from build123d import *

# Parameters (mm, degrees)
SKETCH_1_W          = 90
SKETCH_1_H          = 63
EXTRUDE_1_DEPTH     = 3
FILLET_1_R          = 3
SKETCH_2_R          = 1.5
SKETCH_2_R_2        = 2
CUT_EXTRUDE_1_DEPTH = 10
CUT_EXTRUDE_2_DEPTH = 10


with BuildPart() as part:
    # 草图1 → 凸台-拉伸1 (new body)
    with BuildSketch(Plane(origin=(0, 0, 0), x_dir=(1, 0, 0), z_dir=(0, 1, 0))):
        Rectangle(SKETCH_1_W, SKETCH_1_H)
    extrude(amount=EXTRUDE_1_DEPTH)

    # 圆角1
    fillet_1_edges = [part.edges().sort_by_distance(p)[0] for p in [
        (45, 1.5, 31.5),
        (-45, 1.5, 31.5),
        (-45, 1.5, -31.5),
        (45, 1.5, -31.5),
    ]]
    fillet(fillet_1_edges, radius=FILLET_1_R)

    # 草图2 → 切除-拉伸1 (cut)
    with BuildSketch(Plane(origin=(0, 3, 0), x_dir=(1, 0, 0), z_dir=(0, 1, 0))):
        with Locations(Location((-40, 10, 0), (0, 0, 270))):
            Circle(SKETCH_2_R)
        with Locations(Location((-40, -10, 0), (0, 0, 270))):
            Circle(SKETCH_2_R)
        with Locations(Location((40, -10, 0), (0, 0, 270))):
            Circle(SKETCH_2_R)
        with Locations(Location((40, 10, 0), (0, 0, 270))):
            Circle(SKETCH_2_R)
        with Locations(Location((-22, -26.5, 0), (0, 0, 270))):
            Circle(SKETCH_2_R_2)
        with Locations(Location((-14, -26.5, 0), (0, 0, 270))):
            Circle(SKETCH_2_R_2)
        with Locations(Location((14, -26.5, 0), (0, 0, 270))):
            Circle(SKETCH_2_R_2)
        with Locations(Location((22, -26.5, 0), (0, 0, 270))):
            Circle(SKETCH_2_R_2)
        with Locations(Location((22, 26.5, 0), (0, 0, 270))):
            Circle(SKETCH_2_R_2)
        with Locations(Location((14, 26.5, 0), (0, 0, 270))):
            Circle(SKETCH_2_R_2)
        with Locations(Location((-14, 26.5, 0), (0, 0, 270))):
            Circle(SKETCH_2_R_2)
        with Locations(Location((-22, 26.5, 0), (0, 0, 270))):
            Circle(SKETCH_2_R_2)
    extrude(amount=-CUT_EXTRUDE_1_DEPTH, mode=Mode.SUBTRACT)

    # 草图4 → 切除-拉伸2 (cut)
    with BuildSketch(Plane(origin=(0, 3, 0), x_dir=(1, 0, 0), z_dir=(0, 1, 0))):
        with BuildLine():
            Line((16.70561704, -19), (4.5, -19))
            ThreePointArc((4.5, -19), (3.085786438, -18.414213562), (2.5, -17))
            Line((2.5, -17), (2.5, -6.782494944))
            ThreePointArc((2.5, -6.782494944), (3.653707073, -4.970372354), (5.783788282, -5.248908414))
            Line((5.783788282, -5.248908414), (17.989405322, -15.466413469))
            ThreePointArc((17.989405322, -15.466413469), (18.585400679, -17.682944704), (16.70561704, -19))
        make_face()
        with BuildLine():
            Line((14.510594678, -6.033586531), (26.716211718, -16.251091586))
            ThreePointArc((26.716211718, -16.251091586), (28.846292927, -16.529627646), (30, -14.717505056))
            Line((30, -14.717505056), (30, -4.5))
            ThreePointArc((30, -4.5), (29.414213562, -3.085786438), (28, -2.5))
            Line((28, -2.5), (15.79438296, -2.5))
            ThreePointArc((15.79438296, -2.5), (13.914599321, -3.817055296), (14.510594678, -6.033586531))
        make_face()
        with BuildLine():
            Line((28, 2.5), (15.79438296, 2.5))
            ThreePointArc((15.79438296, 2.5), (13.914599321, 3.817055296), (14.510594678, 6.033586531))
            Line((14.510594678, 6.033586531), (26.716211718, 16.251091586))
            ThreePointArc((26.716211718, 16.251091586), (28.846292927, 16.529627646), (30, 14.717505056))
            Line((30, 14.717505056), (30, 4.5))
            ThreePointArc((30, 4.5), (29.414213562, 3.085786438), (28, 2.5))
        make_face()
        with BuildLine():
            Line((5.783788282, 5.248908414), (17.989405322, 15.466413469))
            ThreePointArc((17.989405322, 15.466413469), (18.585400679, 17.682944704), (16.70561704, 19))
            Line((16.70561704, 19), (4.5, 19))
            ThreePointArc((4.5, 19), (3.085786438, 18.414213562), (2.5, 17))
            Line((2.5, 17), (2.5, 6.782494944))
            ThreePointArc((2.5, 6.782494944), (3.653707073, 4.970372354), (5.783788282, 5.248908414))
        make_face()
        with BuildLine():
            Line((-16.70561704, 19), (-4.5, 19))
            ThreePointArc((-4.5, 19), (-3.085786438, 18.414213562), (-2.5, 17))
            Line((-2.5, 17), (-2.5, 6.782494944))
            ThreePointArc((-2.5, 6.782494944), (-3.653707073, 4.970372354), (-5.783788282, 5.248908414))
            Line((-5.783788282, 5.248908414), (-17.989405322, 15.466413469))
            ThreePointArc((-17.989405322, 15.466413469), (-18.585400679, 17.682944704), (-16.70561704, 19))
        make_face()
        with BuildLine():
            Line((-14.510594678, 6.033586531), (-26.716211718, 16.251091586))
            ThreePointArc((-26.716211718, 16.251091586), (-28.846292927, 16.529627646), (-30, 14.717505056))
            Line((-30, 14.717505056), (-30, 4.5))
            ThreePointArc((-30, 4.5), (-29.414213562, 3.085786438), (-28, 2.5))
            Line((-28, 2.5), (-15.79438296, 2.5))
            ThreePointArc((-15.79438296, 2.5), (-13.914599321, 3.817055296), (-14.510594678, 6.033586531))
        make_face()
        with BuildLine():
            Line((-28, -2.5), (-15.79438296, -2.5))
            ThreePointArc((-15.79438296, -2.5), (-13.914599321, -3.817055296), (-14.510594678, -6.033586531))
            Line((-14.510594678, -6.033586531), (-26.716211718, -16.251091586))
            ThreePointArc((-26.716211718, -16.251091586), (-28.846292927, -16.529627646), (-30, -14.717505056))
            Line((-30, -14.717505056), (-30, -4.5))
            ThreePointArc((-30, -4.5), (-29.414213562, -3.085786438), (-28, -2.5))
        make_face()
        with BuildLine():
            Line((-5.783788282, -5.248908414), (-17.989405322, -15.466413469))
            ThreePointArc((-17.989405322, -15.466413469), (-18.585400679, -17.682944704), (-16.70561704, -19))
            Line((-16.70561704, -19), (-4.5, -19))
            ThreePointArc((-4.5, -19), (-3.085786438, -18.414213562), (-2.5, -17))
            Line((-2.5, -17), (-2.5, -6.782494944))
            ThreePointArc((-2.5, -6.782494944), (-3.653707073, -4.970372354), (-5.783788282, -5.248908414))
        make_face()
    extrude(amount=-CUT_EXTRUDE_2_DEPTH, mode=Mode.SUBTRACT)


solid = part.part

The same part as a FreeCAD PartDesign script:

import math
import FreeCAD as App
import Part
import Sketcher

V = App.Vector


def edges_at(feature, points):
    """Names of the edges that pass closest to the given points."""
    edges = feature.Shape.Edges
    near = lambda p: min(range(len(edges)), key=lambda i: edges[i].distToShape(Part.Vertex(*p))[0])
    return sorted({f"Edge{near(p) + 1}" for p in points})

doc = App.newDocument("Part")
body = doc.addObject("PartDesign::Body", "Body")

sketch1 = doc.addObject("Sketcher::SketchObject", "Sketch")
body.addObject(sketch1)
sketch1.AttachmentSupport = (doc.XZ_Plane, [""])
sketch1.MapMode = "FlatFace"
sketch1.addGeometry(Part.LineSegment(V(-45, -32, 0), V(-45, 32, 0)), False)
sketch1.addGeometry(Part.LineSegment(V(-45, 32, 0), V(45, 32, 0)), False)
sketch1.addGeometry(Part.LineSegment(V(45, 32, 0), V(45, -32, 0)), False)
sketch1.addGeometry(Part.LineSegment(V(45, -32, 0), V(-45, -32, 0)), False)
sketch1.addConstraint(Sketcher.Constraint("Coincident", 0, 2, 1, 1))
sketch1.addConstraint(Sketcher.Constraint("Coincident", 1, 2, 2, 1))
sketch1.addConstraint(Sketcher.Constraint("Coincident", 2, 2, 3, 1))
sketch1.addConstraint(Sketcher.Constraint("Coincident", 3, 2, 0, 1))
sketch1.addConstraint(Sketcher.Constraint("Vertical", 0))
sketch1.addConstraint(Sketcher.Constraint("Horizontal", 1))
sketch1.addConstraint(Sketcher.Constraint("Vertical", 2))
sketch1.addConstraint(Sketcher.Constraint("Horizontal", 3))
sketch1.addConstraint(Sketcher.Constraint("Symmetric", 0, 2, 2, 2, -1, 1))
sketch1.addConstraint(Sketcher.Constraint("DistanceX", 1, 1, 1, 2, 90.0))
sketch1.addConstraint(Sketcher.Constraint("DistanceY", 0, 1, 0, 2, 63.0))
pad1 = doc.addObject("PartDesign::Pad", "Pad")
body.addObject(pad1)
pad1.Profile = sketch1
pad1.Length = 3
pad1.Reversed = True
doc.recompute()

fillet = doc.addObject("PartDesign::Fillet", "Fillet")
body.addObject(fillet)
fillet.Base = (pad1, edges_at(pad1, [
    (45, 1.5, 31.5),
    (-45, 1.5, 31.5),
    (-45, 1.5, -31.5),
    (45, 1.5, -31.5),
]))
fillet.Radius = 3

sketch2 = doc.addObject("Sketcher::SketchObject", "Sketch001")
body.addObject(sketch2)
sketch2.AttachmentSupport = (doc.XZ_Plane, [""])
sketch2.MapMode = "FlatFace"
sketch2.AttachmentOffset = App.Placement(V(0, 0, -3), App.Rotation())
sketch2.addGeometry(Part.Circle(V(-40, -10, 0), V(0, 0, 1), 1.5), False)
sketch2.addGeometry(Part.Circle(V(-40, 10, 0), V(0, 0, 1), 1.5), False)
sketch2.addGeometry(Part.Circle(V(40, 10, 0), V(0, 0, 1), 1.5), False)
sketch2.addGeometry(Part.Circle(V(40, -10, 0), V(0, 0, 1), 1.5), False)
sketch2.addGeometry(Part.Circle(V(-22, 26.5, 0), V(0, 0, 1), 2), False)
sketch2.addGeometry(Part.Circle(V(-14, 26.5, 0), V(0, 0, 1), 2), False)
sketch2.addGeometry(Part.Circle(V(14, 26.5, 0), V(0, 0, 1), 2), False)
sketch2.addGeometry(Part.Circle(V(22, 26.5, 0), V(0, 0, 1), 2), False)
sketch2.addGeometry(Part.Circle(V(22, -26.5, 0), V(0, 0, 1), 2), False)
sketch2.addGeometry(Part.Circle(V(14, -26.5, 0), V(0, 0, 1), 2), False)
sketch2.addGeometry(Part.Circle(V(-14, -26.5, 0), V(0, 0, 1), 2), False)
sketch2.addGeometry(Part.Circle(V(-22, -26.5, 0), V(0, 0, 1), 2), False)
sketch2.addConstraint(Sketcher.Constraint("Equal", 0, 1))
sketch2.addConstraint(Sketcher.Constraint("Equal", 1, 2))
sketch2.addConstraint(Sketcher.Constraint("Equal", 2, 3))
sketch2.addConstraint(Sketcher.Constraint("Equal", 4, 5))
sketch2.addConstraint(Sketcher.Constraint("Equal", 5, 6))
sketch2.addConstraint(Sketcher.Constraint("Equal", 6, 7))
sketch2.addConstraint(Sketcher.Constraint("Equal", 7, 8))
sketch2.addConstraint(Sketcher.Constraint("Equal", 8, 9))
sketch2.addConstraint(Sketcher.Constraint("Equal", 9, 10))
sketch2.addConstraint(Sketcher.Constraint("Equal", 10, 11))
sketch2.addConstraint(Sketcher.Constraint("Symmetric", 0, 3, 2, 3, -1, 1))
sketch2.addConstraint(Sketcher.Constraint("Symmetric", 1, 3, 3, 3, -1, 1))
sketch2.addConstraint(Sketcher.Constraint("Symmetric", 4, 3, 8, 3, -1, 1))
sketch2.addConstraint(Sketcher.Constraint("Symmetric", 5, 3, 9, 3, -1, 1))
sketch2.addConstraint(Sketcher.Constraint("Symmetric", 6, 3, 10, 3, -1, 1))
sketch2.addConstraint(Sketcher.Constraint("Symmetric", 7, 3, 11, 3, -1, 1))
sketch2.addConstraint(Sketcher.Constraint("Symmetric", 1, 3, 2, 3, -2))
sketch2.addConstraint(Sketcher.Constraint("Symmetric", 5, 3, 6, 3, -2))
sketch2.addConstraint(Sketcher.Constraint("Symmetric", 4, 3, 7, 3, -2))
sketch2.addConstraint(Sketcher.Constraint("Horizontal", 4, 3, 5, 3))
sketch2.addConstraint(Sketcher.Constraint("Diameter", 0, 3.0))
sketch2.addConstraint(Sketcher.Constraint("Diameter", 4, 4.0))
sketch2.addConstraint(Sketcher.Constraint("DistanceX", 0, 3, -1, 1, 40.0))
sketch2.addConstraint(Sketcher.Constraint("DistanceY", 0, 3, -1, 1, 10.0))
sketch2.addConstraint(Sketcher.Constraint("DistanceX", 4, 3, -1, 1, 22.0))
sketch2.addConstraint(Sketcher.Constraint("DistanceX", 5, 3, -1, 1, 14.0))
sketch2.addConstraint(Sketcher.Constraint("DistanceY", 8, 3, 7, 3, 53.0))
pocket1 = doc.addObject("PartDesign::Pocket", "Pocket")
body.addObject(pocket1)
pocket1.Profile = sketch2
pocket1.Length = 10
pocket1.Reversed = True

sketch3 = doc.addObject("Sketcher::SketchObject", "Sketch002")
body.addObject(sketch3)
sketch3.AttachmentSupport = (doc.XZ_Plane, [""])
sketch3.MapMode = "FlatFace"
sketch3.AttachmentOffset = App.Placement(V(0, 0, -3), App.Rotation())
sketch3.addGeometry(Part.LineSegment(V(4.5, 19, 0), V(16.7, 19, 0)), False)
sketch3.addGeometry(Part.ArcOfCircle(Part.Circle(V(16.7, 17, 0), V(0, 0, 1), 2), math.radians(-50), math.radians(90)), False)
sketch3.addGeometry(Part.LineSegment(V(18, 15.5, 0), V(5.8, 5.2, 0)), False)
sketch3.addGeometry(Part.ArcOfCircle(Part.Circle(V(4.5, 6.8, 0), V(0, 0, 1), 2), math.radians(180), math.radians(310)), False)
sketch3.addGeometry(Part.LineSegment(V(2.5, 6.8, 0), V(2.5, 17, 0)), False)
sketch3.addGeometry(Part.ArcOfCircle(Part.Circle(V(4.5, 17, 0), V(0, 0, 1), 2), math.radians(90), math.radians(180)), False)
sketch3.addGeometry(Part.LineSegment(V(14.5, 6, 0), V(26.7, 16.3, 0)), False)
sketch3.addGeometry(Part.ArcOfCircle(Part.Circle(V(28, 14.7, 0), V(0, 0, 1), 2), math.radians(0), math.radians(130)), False)
sketch3.addGeometry(Part.LineSegment(V(30, 14.7, 0), V(30, 4.5, 0)), False)
sketch3.addGeometry(Part.ArcOfCircle(Part.Circle(V(28, 4.5, 0), V(0, 0, 1), 2), math.radians(-90), math.radians(0)), False)
sketch3.addGeometry(Part.LineSegment(V(28, 2.5, 0), V(15.8, 2.5, 0)), False)
sketch3.addGeometry(Part.ArcOfCircle(Part.Circle(V(15.8, 4.5, 0), V(0, 0, 1), 2), math.radians(130), math.radians(270)), False)
sketch3.addGeometry(Part.LineSegment(V(15.8, -2.5, 0), V(28, -2.5, 0)), False)
sketch3.addGeometry(Part.ArcOfCircle(Part.Circle(V(28, -4.5, 0), V(0, 0, 1), 2), math.radians(0), math.radians(90)), False)
sketch3.addGeometry(Part.LineSegment(V(30, -4.5, 0), V(30, -14.7, 0)), False)
sketch3.addGeometry(Part.ArcOfCircle(Part.Circle(V(28, -14.7, 0), V(0, 0, 1), 2), math.radians(-130), math.radians(0)), False)
sketch3.addGeometry(Part.LineSegment(V(26.7, -16.3, 0), V(14.5, -6, 0)), False)
sketch3.addGeometry(Part.ArcOfCircle(Part.Circle(V(15.8, -4.5, 0), V(0, 0, 1), 2), math.radians(90), math.radians(230)), False)
sketch3.addGeometry(Part.LineSegment(V(5.8, -5.2, 0), V(18, -15.5, 0)), False)
sketch3.addGeometry(Part.ArcOfCircle(Part.Circle(V(16.7, -17, 0), V(0, 0, 1), 2), math.radians(-90), math.radians(50)), False)
sketch3.addGeometry(Part.LineSegment(V(16.7, -19, 0), V(4.5, -19, 0)), False)
sketch3.addGeometry(Part.ArcOfCircle(Part.Circle(V(4.5, -17, 0), V(0, 0, 1), 2), math.radians(-180), math.radians(-90)), False)
sketch3.addGeometry(Part.LineSegment(V(2.5, -17, 0), V(2.5, -6.8, 0)), False)
sketch3.addGeometry(Part.ArcOfCircle(Part.Circle(V(4.5, -6.8, 0), V(0, 0, 1), 2), math.radians(50), math.radians(180)), False)
sketch3.addGeometry(Part.LineSegment(V(-4.5, -19, 0), V(-16.7, -19, 0)), False)
sketch3.addGeometry(Part.ArcOfCircle(Part.Circle(V(-16.7, -17, 0), V(0, 0, 1), 2), math.radians(130), math.radians(270)), False)
sketch3.addGeometry(Part.LineSegment(V(-18, -15.5, 0), V(-5.8, -5.2, 0)), False)
sketch3.addGeometry(Part.ArcOfCircle(Part.Circle(V(-4.5, -6.8, 0), V(0, 0, 1), 2), math.radians(0), math.radians(130)), False)
sketch3.addGeometry(Part.LineSegment(V(-2.5, -6.8, 0), V(-2.5, -17, 0)), False)
sketch3.addGeometry(Part.ArcOfCircle(Part.Circle(V(-4.5, -17, 0), V(0, 0, 1), 2), math.radians(-90), math.radians(0)), False)
sketch3.addGeometry(Part.LineSegment(V(-14.5, -6, 0), V(-26.7, -16.3, 0)), False)
sketch3.addGeometry(Part.ArcOfCircle(Part.Circle(V(-28, -14.7, 0), V(0, 0, 1), 2), math.radians(180), math.radians(310)), False)
sketch3.addGeometry(Part.LineSegment(V(-30, -14.7, 0), V(-30, -4.5, 0)), False)
sketch3.addGeometry(Part.ArcOfCircle(Part.Circle(V(-28, -4.5, 0), V(0, 0, 1), 2), math.radians(90), math.radians(180)), False)
sketch3.addGeometry(Part.LineSegment(V(-28, -2.5, 0), V(-15.8, -2.5, 0)), False)
sketch3.addGeometry(Part.ArcOfCircle(Part.Circle(V(-15.8, -4.5, 0), V(0, 0, 1), 2), math.radians(-50), math.radians(90)), False)
sketch3.addGeometry(Part.LineSegment(V(-15.8, 2.5, 0), V(-28, 2.5, 0)), False)
sketch3.addGeometry(Part.ArcOfCircle(Part.Circle(V(-28, 4.5, 0), V(0, 0, 1), 2), math.radians(-180), math.radians(-90)), False)
sketch3.addGeometry(Part.LineSegment(V(-30, 4.5, 0), V(-30, 14.7, 0)), False)
sketch3.addGeometry(Part.ArcOfCircle(Part.Circle(V(-28, 14.7, 0), V(0, 0, 1), 2), math.radians(50), math.radians(180)), False)
sketch3.addGeometry(Part.LineSegment(V(-26.7, 16.3, 0), V(-14.5, 6, 0)), False)
sketch3.addGeometry(Part.ArcOfCircle(Part.Circle(V(-15.8, 4.5, 0), V(0, 0, 1), 2), math.radians(-90), math.radians(50)), False)
sketch3.addGeometry(Part.LineSegment(V(-5.8, 5.2, 0), V(-18, 15.5, 0)), False)
sketch3.addGeometry(Part.ArcOfCircle(Part.Circle(V(-16.7, 17, 0), V(0, 0, 1), 2), math.radians(90), math.radians(230)), False)
sketch3.addGeometry(Part.LineSegment(V(-16.7, 19, 0), V(-4.5, 19, 0)), False)
sketch3.addGeometry(Part.ArcOfCircle(Part.Circle(V(-4.5, 17, 0), V(0, 0, 1), 2), math.radians(0), math.radians(90)), False)
sketch3.addGeometry(Part.LineSegment(V(-2.5, 17, 0), V(-2.5, 6.8, 0)), False)
sketch3.addGeometry(Part.ArcOfCircle(Part.Circle(V(-4.5, 6.8, 0), V(0, 0, 1), 2), math.radians(-130), math.radians(0)), False)
sketch3.addConstraint(Sketcher.Constraint("Tangent", 0, 2, 1, 2))
sketch3.addConstraint(Sketcher.Constraint("Tangent", 1, 1, 2, 1))
sketch3.addConstraint(Sketcher.Constraint("Tangent", 2, 2, 3, 2))
sketch3.addConstraint(Sketcher.Constraint("Tangent", 3, 1, 4, 1))
sketch3.addConstraint(Sketcher.Constraint("Tangent", 4, 2, 5, 2))
sketch3.addConstraint(Sketcher.Constraint("Tangent", 5, 1, 0, 1))
sketch3.addConstraint(Sketcher.Constraint("Tangent", 6, 2, 7, 2))
sketch3.addConstraint(Sketcher.Constraint("Tangent", 7, 1, 8, 1))
sketch3.addConstraint(Sketcher.Constraint("Tangent", 8, 2, 9, 2))
sketch3.addConstraint(Sketcher.Constraint("Tangent", 9, 1, 10, 1))
sketch3.addConstraint(Sketcher.Constraint("Tangent", 10, 2, 11, 2))
sketch3.addConstraint(Sketcher.Constraint("Tangent", 11, 1, 6, 1))
sketch3.addConstraint(Sketcher.Constraint("Tangent", 12, 2, 13, 2))
sketch3.addConstraint(Sketcher.Constraint("Tangent", 13, 1, 14, 1))
sketch3.addConstraint(Sketcher.Constraint("Tangent", 14, 2, 15, 2))
sketch3.addConstraint(Sketcher.Constraint("Tangent", 15, 1, 16, 1))
sketch3.addConstraint(Sketcher.Constraint("Tangent", 16, 2, 17, 2))
sketch3.addConstraint(Sketcher.Constraint("Tangent", 17, 1, 12, 1))
sketch3.addConstraint(Sketcher.Constraint("Tangent", 18, 2, 19, 2))
sketch3.addConstraint(Sketcher.Constraint("Tangent", 19, 1, 20, 1))
sketch3.addConstraint(Sketcher.Constraint("Tangent", 20, 2, 21, 2))
sketch3.addConstraint(Sketcher.Constraint("Tangent", 21, 1, 22, 1))
sketch3.addConstraint(Sketcher.Constraint("Tangent", 22, 2, 23, 2))
sketch3.addConstraint(Sketcher.Constraint("Tangent", 23, 1, 18, 1))
sketch3.addConstraint(Sketcher.Constraint("Tangent", 24, 2, 25, 2))
sketch3.addConstraint(Sketcher.Constraint("Tangent", 25, 1, 26, 1))
sketch3.addConstraint(Sketcher.Constraint("Tangent", 26, 2, 27, 2))
sketch3.addConstraint(Sketcher.Constraint("Tangent", 27, 1, 28, 1))
sketch3.addConstraint(Sketcher.Constraint("Tangent", 28, 2, 29, 2))
sketch3.addConstraint(Sketcher.Constraint("Tangent", 29, 1, 24, 1))
sketch3.addConstraint(Sketcher.Constraint("Tangent", 30, 2, 31, 2))
sketch3.addConstraint(Sketcher.Constraint("Tangent", 31, 1, 32, 1))
sketch3.addConstraint(Sketcher.Constraint("Tangent", 32, 2, 33, 2))
sketch3.addConstraint(Sketcher.Constraint("Tangent", 33, 1, 34, 1))
sketch3.addConstraint(Sketcher.Constraint("Tangent", 34, 2, 35, 2))
sketch3.addConstraint(Sketcher.Constraint("Tangent", 35, 1, 30, 1))
sketch3.addConstraint(Sketcher.Constraint("Tangent", 36, 2, 37, 2))
sketch3.addConstraint(Sketcher.Constraint("Tangent", 37, 1, 38, 1))
sketch3.addConstraint(Sketcher.Constraint("Tangent", 38, 2, 39, 2))
sketch3.addConstraint(Sketcher.Constraint("Tangent", 39, 1, 40, 1))
sketch3.addConstraint(Sketcher.Constraint("Tangent", 40, 2, 41, 2))
sketch3.addConstraint(Sketcher.Constraint("Tangent", 41, 1, 36, 1))
sketch3.addConstraint(Sketcher.Constraint("Tangent", 42, 2, 43, 2))
sketch3.addConstraint(Sketcher.Constraint("Tangent", 43, 1, 44, 1))
sketch3.addConstraint(Sketcher.Constraint("Tangent", 44, 2, 45, 2))
sketch3.addConstraint(Sketcher.Constraint("Tangent", 45, 1, 46, 1))
sketch3.addConstraint(Sketcher.Constraint("Tangent", 46, 2, 47, 2))
sketch3.addConstraint(Sketcher.Constraint("Tangent", 47, 1, 42, 1))
sketch3.addConstraint(Sketcher.Constraint("Horizontal", 0))
sketch3.addConstraint(Sketcher.Constraint("Vertical", 4))
sketch3.addConstraint(Sketcher.Constraint("Vertical", 8))
sketch3.addConstraint(Sketcher.Constraint("Horizontal", 10))
sketch3.addConstraint(Sketcher.Constraint("Horizontal", 12))
sketch3.addConstraint(Sketcher.Constraint("Vertical", 14))
sketch3.addConstraint(Sketcher.Constraint("Horizontal", 20))
sketch3.addConstraint(Sketcher.Constraint("Vertical", 22))
sketch3.addConstraint(Sketcher.Constraint("Horizontal", 24))
sketch3.addConstraint(Sketcher.Constraint("Vertical", 28))
sketch3.addConstraint(Sketcher.Constraint("Vertical", 32))
sketch3.addConstraint(Sketcher.Constraint("Horizontal", 34))
sketch3.addConstraint(Sketcher.Constraint("Horizontal", 36))
sketch3.addConstraint(Sketcher.Constraint("Vertical", 38))
sketch3.addConstraint(Sketcher.Constraint("Horizontal", 44))
sketch3.addConstraint(Sketcher.Constraint("Vertical", 46))
sketch3.addConstraint(Sketcher.Constraint("Equal", 1, 3))
sketch3.addConstraint(Sketcher.Constraint("Equal", 3, 5))
sketch3.addConstraint(Sketcher.Constraint("Equal", 5, 7))
sketch3.addConstraint(Sketcher.Constraint("Equal", 7, 9))
sketch3.addConstraint(Sketcher.Constraint("Equal", 9, 11))
sketch3.addConstraint(Sketcher.Constraint("Equal", 11, 13))
sketch3.addConstraint(Sketcher.Constraint("Equal", 13, 15))
sketch3.addConstraint(Sketcher.Constraint("Equal", 15, 17))
sketch3.addConstraint(Sketcher.Constraint("Equal", 17, 19))
sketch3.addConstraint(Sketcher.Constraint("Equal", 19, 21))
sketch3.addConstraint(Sketcher.Constraint("Equal", 21, 23))
sketch3.addConstraint(Sketcher.Constraint("Equal", 23, 25))
sketch3.addConstraint(Sketcher.Constraint("Equal", 25, 27))
sketch3.addConstraint(Sketcher.Constraint("Equal", 27, 29))
sketch3.addConstraint(Sketcher.Constraint("Equal", 29, 31))
sketch3.addConstraint(Sketcher.Constraint("Equal", 31, 33))
sketch3.addConstraint(Sketcher.Constraint("Equal", 33, 35))
sketch3.addConstraint(Sketcher.Constraint("Equal", 35, 37))
sketch3.addConstraint(Sketcher.Constraint("Equal", 37, 39))
sketch3.addConstraint(Sketcher.Constraint("Equal", 39, 41))
sketch3.addConstraint(Sketcher.Constraint("Equal", 41, 43))
sketch3.addConstraint(Sketcher.Constraint("Equal", 43, 45))
sketch3.addConstraint(Sketcher.Constraint("Equal", 45, 47))
sketch3.addConstraint(Sketcher.Constraint("Symmetric", 1, 3, 25, 3, -1, 1))
sketch3.addConstraint(Sketcher.Constraint("Symmetric", 3, 3, 27, 3, -1, 1))
sketch3.addConstraint(Sketcher.Constraint("Symmetric", 7, 3, 31, 3, -1, 1))
sketch3.addConstraint(Sketcher.Constraint("Symmetric", 11, 3, 35, 3, -1, 1))
sketch3.addConstraint(Sketcher.Constraint("Symmetric", 13, 3, 37, 3, -1, 1))
sketch3.addConstraint(Sketcher.Constraint("Symmetric", 19, 3, 43, 3, -1, 1))
sketch3.addConstraint(Sketcher.Constraint("Symmetric", 23, 3, 47, 3, -1, 1))
sketch3.addConstraint(Sketcher.Constraint("Symmetric", 15, 1, 39, 1, -1, 1))
sketch3.addConstraint(Sketcher.Constraint("Symmetric", 19, 3, 25, 3, -2))
sketch3.addConstraint(Sketcher.Constraint("Symmetric", 23, 3, 27, 3, -2))
sketch3.addConstraint(Sketcher.Constraint("Symmetric", 15, 3, 31, 3, -2))
sketch3.addConstraint(Sketcher.Constraint("Symmetric", 17, 3, 35, 3, -2))
sketch3.addConstraint(Sketcher.Constraint("Parallel", 2, 6))
sketch3.addConstraint(Sketcher.Constraint("Equal", 0, 10))
sketch3.addConstraint(Sketcher.Constraint("Radius", 1, 2.0))
sketch3.addConstraint(Sketcher.Constraint("DistanceY", -1, 1, 1, 3, 17.0))
sketch3.addConstraint(Sketcher.Constraint("DistanceX", -1, 1, 7, 3, 28.0))
sketch3.addConstraint(Sketcher.Constraint("DistanceX", -1, 1, 3, 3, 4.5))
sketch3.addConstraint(Sketcher.Constraint("DistanceY", -1, 1, 9, 3, 4.5))
sketch3.addConstraint(Sketcher.Constraint("Distance", 2, 15.917742))
sketch3.addConstraint(Sketcher.Constraint("DistanceX", 0, 1, 0, 2, 12.205617))
pocket2 = doc.addObject("PartDesign::Pocket", "Pocket001")
body.addObject(pocket2)
pocket2.Profile = sketch3
pocket2.Length = 10
pocket2.Reversed = True

doc.recompute()
